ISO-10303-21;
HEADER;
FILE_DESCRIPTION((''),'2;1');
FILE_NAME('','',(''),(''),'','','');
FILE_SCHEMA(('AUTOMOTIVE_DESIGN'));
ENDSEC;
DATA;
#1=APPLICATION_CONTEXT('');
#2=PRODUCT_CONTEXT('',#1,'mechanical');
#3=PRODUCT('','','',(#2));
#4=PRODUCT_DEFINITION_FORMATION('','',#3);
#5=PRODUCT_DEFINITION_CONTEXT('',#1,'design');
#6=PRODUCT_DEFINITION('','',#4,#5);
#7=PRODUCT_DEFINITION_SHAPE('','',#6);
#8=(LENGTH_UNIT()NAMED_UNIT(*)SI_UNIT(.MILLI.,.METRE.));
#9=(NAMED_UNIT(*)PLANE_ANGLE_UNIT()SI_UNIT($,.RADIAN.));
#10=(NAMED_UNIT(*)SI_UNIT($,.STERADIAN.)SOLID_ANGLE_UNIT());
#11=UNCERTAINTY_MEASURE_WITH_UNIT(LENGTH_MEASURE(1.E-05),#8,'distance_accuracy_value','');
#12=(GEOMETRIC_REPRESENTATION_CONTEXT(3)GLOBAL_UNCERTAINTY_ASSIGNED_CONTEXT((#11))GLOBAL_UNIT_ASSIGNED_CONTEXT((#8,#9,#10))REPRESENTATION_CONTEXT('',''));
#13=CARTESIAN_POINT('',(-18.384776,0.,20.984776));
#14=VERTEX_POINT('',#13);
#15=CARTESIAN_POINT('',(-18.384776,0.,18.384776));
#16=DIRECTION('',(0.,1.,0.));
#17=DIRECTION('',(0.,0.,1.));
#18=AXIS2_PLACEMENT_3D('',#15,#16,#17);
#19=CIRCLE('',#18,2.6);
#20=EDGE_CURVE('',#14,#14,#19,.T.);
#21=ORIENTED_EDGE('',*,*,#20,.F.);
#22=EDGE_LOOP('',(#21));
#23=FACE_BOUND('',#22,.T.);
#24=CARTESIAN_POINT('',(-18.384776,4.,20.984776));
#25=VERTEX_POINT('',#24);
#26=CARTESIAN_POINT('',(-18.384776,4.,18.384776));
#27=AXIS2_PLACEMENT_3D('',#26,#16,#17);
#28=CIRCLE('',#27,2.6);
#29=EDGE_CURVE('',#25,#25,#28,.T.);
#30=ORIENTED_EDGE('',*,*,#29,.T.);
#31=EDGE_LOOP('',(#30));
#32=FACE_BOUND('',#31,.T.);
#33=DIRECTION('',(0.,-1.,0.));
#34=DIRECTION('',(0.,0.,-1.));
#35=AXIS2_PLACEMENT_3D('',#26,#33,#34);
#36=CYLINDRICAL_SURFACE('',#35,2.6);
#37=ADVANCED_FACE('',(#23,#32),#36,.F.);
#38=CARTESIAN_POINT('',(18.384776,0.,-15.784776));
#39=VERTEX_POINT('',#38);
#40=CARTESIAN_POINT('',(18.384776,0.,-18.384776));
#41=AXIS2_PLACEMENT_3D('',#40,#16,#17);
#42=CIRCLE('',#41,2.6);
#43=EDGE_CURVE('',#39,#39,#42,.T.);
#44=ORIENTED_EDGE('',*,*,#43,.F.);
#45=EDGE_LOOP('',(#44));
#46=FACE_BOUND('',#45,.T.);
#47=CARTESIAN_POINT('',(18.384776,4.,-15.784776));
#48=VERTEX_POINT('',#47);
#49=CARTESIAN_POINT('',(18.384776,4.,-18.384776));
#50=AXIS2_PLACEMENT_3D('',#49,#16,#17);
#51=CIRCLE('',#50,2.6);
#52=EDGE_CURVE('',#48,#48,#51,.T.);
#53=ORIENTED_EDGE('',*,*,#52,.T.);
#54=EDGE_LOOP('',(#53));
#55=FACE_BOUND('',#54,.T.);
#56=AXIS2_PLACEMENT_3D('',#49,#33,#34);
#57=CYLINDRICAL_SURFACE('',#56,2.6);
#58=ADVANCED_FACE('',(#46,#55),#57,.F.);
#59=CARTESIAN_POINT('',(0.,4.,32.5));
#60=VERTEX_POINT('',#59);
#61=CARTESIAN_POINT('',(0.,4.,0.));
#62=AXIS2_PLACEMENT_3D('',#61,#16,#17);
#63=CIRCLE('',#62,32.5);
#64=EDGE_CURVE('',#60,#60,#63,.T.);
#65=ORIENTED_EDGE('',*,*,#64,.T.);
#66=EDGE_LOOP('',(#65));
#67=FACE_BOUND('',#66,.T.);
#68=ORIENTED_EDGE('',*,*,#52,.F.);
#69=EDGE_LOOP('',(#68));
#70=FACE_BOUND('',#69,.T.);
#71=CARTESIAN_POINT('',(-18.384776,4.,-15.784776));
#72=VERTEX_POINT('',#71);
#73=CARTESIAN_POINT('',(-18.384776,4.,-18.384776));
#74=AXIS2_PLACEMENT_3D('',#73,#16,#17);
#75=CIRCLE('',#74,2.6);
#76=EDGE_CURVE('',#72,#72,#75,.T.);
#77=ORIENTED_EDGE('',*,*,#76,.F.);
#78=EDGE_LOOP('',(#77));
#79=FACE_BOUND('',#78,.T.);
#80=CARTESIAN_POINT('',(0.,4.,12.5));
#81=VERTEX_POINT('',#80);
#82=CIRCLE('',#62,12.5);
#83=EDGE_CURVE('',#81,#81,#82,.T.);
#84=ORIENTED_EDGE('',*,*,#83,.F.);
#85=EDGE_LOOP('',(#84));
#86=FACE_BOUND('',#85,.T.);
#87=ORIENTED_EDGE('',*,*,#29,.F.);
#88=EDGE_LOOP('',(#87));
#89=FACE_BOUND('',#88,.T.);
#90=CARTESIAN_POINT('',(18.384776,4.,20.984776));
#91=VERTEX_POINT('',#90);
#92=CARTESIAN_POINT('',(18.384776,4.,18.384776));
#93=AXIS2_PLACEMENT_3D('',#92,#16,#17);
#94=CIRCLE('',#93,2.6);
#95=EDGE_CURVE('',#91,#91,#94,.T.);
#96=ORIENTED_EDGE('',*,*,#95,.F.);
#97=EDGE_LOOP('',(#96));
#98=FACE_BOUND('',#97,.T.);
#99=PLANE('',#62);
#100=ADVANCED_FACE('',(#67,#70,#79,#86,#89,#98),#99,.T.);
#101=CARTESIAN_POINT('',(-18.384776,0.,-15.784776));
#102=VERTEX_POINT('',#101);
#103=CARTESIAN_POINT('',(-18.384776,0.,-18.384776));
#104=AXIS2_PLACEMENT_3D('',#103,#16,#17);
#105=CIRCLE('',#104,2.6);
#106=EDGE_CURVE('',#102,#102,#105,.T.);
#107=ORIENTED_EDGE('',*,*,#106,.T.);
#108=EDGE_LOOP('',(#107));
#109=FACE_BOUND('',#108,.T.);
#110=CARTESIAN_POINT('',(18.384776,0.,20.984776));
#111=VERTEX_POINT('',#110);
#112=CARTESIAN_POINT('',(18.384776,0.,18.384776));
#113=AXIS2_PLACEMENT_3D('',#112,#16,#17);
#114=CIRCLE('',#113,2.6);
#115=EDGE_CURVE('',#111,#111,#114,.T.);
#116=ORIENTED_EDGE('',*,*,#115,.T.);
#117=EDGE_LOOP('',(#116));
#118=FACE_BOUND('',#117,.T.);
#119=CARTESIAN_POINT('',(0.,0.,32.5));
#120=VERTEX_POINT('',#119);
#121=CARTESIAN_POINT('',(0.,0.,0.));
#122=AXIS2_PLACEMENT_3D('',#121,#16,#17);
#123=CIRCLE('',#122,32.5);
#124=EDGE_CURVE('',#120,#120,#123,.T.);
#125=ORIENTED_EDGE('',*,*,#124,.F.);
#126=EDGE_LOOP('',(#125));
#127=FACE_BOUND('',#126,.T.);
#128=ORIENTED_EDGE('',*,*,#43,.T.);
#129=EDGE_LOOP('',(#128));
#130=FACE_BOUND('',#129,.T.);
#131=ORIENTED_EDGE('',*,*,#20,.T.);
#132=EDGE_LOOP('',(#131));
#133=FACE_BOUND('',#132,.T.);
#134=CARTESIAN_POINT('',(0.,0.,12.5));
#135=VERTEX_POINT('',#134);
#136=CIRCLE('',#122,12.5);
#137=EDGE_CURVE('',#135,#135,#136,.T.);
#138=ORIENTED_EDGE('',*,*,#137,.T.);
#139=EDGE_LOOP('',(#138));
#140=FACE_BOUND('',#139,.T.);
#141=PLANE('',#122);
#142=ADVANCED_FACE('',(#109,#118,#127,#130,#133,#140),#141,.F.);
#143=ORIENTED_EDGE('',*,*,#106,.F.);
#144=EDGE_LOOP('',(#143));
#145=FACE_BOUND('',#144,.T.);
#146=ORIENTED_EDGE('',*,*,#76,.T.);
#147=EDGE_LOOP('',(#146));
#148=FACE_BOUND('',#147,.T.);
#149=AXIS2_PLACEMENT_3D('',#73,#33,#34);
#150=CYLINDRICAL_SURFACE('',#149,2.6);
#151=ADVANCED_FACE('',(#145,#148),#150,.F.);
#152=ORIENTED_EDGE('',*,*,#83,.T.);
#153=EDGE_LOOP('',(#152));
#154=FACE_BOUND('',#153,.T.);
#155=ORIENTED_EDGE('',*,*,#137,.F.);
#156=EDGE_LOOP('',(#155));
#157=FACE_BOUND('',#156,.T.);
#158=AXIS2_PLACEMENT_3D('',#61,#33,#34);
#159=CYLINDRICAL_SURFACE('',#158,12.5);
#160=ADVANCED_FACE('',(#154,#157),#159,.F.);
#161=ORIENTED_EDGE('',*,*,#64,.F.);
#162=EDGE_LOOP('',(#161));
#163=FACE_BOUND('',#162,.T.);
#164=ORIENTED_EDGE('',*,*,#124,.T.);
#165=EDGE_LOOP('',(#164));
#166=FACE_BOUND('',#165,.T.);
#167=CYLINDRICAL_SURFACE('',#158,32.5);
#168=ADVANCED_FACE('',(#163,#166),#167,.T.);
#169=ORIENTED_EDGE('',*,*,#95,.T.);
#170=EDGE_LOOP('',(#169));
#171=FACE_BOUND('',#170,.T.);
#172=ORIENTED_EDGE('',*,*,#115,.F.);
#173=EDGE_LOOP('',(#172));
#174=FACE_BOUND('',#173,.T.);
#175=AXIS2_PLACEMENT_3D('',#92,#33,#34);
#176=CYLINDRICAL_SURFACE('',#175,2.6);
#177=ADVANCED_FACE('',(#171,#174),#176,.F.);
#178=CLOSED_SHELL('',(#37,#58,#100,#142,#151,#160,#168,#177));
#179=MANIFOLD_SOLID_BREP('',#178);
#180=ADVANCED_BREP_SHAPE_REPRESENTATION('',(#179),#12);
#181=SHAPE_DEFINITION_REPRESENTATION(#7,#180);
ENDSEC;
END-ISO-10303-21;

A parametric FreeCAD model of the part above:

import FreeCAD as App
import Part
import Sketcher
Q = App.Units.Quantity

doc = App.newDocument("Part")
body = doc.addObject("PartDesign::Body", "Body")

sketch1 = body.newObject("Sketcher::SketchObject", "Sketch")
sketch1.AttachmentSupport = (doc.getObject("XZ_Plane"), [""])
sketch1.MapMode = "FlatFace"
sketch1.addGeometry([
    Part.Circle(App.Vector(0, 0, 0), App.Vector(0, 0, 1), 32.5),
    Part.Circle(App.Vector(-18.4, -18.4, 0), App.Vector(0, 0, 1), 2.6),
    Part.Circle(App.Vector(-18.4, 18.4, 0), App.Vector(0, 0, 1), 2.6),
    Part.Circle(App.Vector(0, 0, 0), App.Vector(0, 0, 1), 12.5),
    Part.Circle(App.Vector(18.4, -18.4, 0), App.Vector(0, 0, 1), 2.6),
    Part.Circle(App.Vector(18.4, 18.4, 0), App.Vector(0, 0, 1), 2.6),
], False)
sketch1.addConstraint([
    Sketcher.Constraint("Coincident", 0, 3, -1, 1),
    Sketcher.Constraint("Coincident", 3, 3, -1, 1),
    Sketcher.Constraint("Equal", 1, 2),
    Sketcher.Constraint("Equal", 2, 4),
    Sketcher.Constraint("Equal", 4, 5),
    Sketcher.Constraint("Symmetric", 2, 3, 4, 3, -1, 1),
    Sketcher.Constraint("Symmetric", 1, 3, 5, 3, -1, 1),
    Sketcher.Constraint("Symmetric", 1, 3, 4, 3, -2),
    Sketcher.Constraint("Diameter", 0, Q("65 mm")),
    Sketcher.Constraint("Diameter", 3, Q("25 mm")),
    Sketcher.Constraint("Diameter", 1, Q("5.2 mm")),
    Sketcher.Constraint("DistanceX", 1, 3, -1, 1, Q("18.384776 mm")),
    Sketcher.Constraint("DistanceY", 1, 3, -1, 1, Q("18.384776 mm")),
])
pad1 = body.newObject("PartDesign::Pad", "Pad")
pad1.Profile = sketch1
pad1.Length = 4
pad1.Reversed = True

doc.recompute()
